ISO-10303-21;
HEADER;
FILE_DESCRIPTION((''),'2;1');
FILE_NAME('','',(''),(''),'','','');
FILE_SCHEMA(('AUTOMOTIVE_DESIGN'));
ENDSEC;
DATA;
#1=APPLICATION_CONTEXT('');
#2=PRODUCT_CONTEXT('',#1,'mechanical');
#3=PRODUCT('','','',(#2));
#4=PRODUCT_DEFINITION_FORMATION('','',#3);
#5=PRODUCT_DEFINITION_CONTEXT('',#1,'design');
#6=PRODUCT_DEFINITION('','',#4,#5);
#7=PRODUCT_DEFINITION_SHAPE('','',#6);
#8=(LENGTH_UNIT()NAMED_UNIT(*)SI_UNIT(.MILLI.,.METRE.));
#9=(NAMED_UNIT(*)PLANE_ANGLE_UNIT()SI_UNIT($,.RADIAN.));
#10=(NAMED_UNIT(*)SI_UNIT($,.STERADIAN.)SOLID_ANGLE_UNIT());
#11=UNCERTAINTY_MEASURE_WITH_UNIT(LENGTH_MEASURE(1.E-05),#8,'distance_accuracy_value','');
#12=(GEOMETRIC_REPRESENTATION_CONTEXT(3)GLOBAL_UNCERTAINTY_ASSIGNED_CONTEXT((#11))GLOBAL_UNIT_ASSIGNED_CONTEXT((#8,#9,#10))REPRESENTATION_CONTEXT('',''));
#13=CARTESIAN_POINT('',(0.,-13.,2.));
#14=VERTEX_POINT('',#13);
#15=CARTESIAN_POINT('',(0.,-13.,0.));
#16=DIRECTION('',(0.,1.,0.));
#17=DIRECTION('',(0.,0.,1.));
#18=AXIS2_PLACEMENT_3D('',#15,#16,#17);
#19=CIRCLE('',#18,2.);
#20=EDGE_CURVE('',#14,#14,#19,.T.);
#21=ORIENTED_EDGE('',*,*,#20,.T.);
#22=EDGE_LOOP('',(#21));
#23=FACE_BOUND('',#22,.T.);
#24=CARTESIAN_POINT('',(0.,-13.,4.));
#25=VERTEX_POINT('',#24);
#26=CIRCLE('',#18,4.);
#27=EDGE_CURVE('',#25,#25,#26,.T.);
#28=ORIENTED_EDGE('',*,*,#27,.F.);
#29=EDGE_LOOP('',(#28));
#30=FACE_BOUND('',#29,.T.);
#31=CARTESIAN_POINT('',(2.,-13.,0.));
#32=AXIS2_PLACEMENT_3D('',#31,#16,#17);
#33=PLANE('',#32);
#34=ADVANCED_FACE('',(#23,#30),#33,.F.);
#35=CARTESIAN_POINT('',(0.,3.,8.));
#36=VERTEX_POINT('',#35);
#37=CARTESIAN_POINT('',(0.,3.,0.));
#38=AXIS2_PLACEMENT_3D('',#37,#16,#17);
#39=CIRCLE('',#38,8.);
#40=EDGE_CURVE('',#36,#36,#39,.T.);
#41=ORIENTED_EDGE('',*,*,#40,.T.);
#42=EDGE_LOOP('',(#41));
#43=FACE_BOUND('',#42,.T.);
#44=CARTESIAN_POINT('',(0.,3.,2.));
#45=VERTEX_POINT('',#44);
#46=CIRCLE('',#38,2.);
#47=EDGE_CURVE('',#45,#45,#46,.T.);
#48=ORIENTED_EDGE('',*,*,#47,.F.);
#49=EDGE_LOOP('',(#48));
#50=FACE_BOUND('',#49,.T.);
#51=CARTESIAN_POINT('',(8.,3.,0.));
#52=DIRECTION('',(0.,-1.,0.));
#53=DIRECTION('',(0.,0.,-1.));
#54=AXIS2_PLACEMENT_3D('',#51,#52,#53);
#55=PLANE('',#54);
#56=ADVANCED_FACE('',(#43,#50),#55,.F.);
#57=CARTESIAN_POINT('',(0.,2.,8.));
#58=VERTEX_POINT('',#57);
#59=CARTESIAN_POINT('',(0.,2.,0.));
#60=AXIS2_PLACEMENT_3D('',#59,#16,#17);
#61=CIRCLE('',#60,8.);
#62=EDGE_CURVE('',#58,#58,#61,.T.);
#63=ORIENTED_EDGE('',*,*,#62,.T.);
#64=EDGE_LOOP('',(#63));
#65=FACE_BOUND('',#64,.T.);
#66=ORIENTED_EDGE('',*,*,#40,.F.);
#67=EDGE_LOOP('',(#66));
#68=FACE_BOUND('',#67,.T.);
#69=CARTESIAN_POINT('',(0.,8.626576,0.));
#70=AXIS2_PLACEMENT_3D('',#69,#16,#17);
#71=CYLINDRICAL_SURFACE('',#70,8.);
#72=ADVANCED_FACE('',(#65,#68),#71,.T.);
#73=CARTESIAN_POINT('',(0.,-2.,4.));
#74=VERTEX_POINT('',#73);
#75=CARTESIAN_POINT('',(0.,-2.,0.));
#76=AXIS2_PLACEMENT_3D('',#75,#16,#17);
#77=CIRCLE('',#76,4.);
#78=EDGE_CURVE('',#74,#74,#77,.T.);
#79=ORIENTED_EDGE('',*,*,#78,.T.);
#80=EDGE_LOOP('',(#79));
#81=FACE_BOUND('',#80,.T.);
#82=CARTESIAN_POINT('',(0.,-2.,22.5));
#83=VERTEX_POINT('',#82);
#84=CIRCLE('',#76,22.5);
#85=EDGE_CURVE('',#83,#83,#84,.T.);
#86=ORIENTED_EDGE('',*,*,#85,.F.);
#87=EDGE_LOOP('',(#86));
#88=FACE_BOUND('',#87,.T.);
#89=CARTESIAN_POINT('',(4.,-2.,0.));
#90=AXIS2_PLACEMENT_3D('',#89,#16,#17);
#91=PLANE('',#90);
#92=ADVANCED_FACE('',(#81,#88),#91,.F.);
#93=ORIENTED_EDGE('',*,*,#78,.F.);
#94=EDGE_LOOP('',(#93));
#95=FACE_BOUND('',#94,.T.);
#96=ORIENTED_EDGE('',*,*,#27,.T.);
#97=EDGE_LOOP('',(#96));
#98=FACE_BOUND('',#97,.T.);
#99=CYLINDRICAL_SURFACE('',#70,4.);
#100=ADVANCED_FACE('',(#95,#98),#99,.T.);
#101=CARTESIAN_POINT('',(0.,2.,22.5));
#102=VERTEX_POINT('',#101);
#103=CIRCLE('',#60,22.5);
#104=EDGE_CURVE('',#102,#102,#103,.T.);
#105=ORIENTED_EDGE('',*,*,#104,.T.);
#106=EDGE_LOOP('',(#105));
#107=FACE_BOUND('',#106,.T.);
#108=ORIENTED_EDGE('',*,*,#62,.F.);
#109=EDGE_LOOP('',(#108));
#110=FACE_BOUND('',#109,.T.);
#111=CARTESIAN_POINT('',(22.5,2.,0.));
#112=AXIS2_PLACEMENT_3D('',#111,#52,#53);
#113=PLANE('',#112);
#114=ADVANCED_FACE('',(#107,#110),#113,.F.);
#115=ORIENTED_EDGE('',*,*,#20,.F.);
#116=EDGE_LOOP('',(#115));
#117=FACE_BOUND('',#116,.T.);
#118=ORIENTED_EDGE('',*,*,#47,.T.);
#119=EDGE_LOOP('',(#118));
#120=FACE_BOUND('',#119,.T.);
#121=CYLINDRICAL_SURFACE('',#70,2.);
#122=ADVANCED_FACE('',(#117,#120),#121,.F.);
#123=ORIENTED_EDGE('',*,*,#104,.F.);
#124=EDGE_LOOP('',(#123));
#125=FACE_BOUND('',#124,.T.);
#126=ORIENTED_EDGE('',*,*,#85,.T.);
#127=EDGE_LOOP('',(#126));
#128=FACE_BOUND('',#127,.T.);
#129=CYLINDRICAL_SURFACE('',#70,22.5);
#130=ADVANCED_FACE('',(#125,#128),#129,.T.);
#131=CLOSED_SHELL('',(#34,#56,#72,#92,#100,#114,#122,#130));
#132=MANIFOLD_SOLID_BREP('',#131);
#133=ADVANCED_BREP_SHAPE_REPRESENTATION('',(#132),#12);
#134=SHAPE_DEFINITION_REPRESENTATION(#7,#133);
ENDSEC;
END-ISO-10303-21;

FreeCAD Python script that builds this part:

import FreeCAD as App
import Part
import Sketcher
Q = App.Units.Quantity


def add_polygon(sketch, points):
    """Adds a closed chain of lines whose ends are joined by coincident constraints."""
    first, n = sketch.GeometryCount, len(points)
    for a, b in zip(points, points[1:] + points[:1]):
        sketch.addGeometry(Part.LineSegment(App.Vector(*a, 0), App.Vector(*b, 0)), False)
    for i in range(n):
        sketch.addConstraint(Sketcher.Constraint("Coincident", first + i, 2, first + (i + 1) % n, 1))

doc = App.newDocument("Part")
body = doc.addObject("PartDesign::Body", "Body")

sketch1 = body.newObject("Sketcher::SketchObject", "Sketch")
sketch1.AttachmentSupport = (doc.getObject("XY_Plane"), [""])
sketch1.MapMode = "FlatFace"
add_polygon(sketch1, [(2, 3), (2, -13), (4, -13), (4, -2), (22.5, -2), (22.5, 2), (8, 2), (8, 3)])
sketch1.addConstraint(Sketcher.Constraint("Vertical", 0))
sketch1.addConstraint(Sketcher.Constraint("Horizontal", 1))
sketch1.addConstraint(Sketcher.Constraint("Vertical", 2))
sketch1.addConstraint(Sketcher.Constraint("Horizontal", 3))
sketch1.addConstraint(Sketcher.Constraint("Vertical", 4))
sketch1.addConstraint(Sketcher.Constraint("Horizontal", 5))
sketch1.addConstraint(Sketcher.Constraint("Vertical", 6))
sketch1.addConstraint(Sketcher.Constraint("Horizontal", 7))
sketch1.addConstraint(Sketcher.Constraint("DistanceX", 1, 1, 1, 2, Q("2 mm")))
sketch1.addConstraint(Sketcher.Constraint("DistanceX", 7, 2, 7, 1, Q("6 mm")))
sketch1.addConstraint(Sketcher.Constraint("DistanceY", 0, 2, 0, 1, Q("16 mm")))
sketch1.addConstraint(Sketcher.Constraint("DistanceY", 2, 1, 2, 2, Q("11 mm")))
sketch1.addConstraint(Sketcher.Constraint("DistanceY", 4, 1, 4, 2, Q("4 mm")))
sketch1.addConstraint(Sketcher.Constraint("DistanceX", 3, 1, 3, 2, Q("18.5 mm")))
sketch1.addConstraint(Sketcher.Constraint("DistanceX", -1, 1, 0, 2, Q("2 mm")))
sketch1.addConstraint(Sketcher.Constraint("DistanceY", 0, 2, -1, 1, Q("13 mm")))
revolution = body.newObject("PartDesign::Revolution", "Revolution")
revolution.Profile = sketch1
revolution.ReferenceAxis = (sketch1, ["V_Axis"])
revolution.Angle = 360

doc.recompute()
